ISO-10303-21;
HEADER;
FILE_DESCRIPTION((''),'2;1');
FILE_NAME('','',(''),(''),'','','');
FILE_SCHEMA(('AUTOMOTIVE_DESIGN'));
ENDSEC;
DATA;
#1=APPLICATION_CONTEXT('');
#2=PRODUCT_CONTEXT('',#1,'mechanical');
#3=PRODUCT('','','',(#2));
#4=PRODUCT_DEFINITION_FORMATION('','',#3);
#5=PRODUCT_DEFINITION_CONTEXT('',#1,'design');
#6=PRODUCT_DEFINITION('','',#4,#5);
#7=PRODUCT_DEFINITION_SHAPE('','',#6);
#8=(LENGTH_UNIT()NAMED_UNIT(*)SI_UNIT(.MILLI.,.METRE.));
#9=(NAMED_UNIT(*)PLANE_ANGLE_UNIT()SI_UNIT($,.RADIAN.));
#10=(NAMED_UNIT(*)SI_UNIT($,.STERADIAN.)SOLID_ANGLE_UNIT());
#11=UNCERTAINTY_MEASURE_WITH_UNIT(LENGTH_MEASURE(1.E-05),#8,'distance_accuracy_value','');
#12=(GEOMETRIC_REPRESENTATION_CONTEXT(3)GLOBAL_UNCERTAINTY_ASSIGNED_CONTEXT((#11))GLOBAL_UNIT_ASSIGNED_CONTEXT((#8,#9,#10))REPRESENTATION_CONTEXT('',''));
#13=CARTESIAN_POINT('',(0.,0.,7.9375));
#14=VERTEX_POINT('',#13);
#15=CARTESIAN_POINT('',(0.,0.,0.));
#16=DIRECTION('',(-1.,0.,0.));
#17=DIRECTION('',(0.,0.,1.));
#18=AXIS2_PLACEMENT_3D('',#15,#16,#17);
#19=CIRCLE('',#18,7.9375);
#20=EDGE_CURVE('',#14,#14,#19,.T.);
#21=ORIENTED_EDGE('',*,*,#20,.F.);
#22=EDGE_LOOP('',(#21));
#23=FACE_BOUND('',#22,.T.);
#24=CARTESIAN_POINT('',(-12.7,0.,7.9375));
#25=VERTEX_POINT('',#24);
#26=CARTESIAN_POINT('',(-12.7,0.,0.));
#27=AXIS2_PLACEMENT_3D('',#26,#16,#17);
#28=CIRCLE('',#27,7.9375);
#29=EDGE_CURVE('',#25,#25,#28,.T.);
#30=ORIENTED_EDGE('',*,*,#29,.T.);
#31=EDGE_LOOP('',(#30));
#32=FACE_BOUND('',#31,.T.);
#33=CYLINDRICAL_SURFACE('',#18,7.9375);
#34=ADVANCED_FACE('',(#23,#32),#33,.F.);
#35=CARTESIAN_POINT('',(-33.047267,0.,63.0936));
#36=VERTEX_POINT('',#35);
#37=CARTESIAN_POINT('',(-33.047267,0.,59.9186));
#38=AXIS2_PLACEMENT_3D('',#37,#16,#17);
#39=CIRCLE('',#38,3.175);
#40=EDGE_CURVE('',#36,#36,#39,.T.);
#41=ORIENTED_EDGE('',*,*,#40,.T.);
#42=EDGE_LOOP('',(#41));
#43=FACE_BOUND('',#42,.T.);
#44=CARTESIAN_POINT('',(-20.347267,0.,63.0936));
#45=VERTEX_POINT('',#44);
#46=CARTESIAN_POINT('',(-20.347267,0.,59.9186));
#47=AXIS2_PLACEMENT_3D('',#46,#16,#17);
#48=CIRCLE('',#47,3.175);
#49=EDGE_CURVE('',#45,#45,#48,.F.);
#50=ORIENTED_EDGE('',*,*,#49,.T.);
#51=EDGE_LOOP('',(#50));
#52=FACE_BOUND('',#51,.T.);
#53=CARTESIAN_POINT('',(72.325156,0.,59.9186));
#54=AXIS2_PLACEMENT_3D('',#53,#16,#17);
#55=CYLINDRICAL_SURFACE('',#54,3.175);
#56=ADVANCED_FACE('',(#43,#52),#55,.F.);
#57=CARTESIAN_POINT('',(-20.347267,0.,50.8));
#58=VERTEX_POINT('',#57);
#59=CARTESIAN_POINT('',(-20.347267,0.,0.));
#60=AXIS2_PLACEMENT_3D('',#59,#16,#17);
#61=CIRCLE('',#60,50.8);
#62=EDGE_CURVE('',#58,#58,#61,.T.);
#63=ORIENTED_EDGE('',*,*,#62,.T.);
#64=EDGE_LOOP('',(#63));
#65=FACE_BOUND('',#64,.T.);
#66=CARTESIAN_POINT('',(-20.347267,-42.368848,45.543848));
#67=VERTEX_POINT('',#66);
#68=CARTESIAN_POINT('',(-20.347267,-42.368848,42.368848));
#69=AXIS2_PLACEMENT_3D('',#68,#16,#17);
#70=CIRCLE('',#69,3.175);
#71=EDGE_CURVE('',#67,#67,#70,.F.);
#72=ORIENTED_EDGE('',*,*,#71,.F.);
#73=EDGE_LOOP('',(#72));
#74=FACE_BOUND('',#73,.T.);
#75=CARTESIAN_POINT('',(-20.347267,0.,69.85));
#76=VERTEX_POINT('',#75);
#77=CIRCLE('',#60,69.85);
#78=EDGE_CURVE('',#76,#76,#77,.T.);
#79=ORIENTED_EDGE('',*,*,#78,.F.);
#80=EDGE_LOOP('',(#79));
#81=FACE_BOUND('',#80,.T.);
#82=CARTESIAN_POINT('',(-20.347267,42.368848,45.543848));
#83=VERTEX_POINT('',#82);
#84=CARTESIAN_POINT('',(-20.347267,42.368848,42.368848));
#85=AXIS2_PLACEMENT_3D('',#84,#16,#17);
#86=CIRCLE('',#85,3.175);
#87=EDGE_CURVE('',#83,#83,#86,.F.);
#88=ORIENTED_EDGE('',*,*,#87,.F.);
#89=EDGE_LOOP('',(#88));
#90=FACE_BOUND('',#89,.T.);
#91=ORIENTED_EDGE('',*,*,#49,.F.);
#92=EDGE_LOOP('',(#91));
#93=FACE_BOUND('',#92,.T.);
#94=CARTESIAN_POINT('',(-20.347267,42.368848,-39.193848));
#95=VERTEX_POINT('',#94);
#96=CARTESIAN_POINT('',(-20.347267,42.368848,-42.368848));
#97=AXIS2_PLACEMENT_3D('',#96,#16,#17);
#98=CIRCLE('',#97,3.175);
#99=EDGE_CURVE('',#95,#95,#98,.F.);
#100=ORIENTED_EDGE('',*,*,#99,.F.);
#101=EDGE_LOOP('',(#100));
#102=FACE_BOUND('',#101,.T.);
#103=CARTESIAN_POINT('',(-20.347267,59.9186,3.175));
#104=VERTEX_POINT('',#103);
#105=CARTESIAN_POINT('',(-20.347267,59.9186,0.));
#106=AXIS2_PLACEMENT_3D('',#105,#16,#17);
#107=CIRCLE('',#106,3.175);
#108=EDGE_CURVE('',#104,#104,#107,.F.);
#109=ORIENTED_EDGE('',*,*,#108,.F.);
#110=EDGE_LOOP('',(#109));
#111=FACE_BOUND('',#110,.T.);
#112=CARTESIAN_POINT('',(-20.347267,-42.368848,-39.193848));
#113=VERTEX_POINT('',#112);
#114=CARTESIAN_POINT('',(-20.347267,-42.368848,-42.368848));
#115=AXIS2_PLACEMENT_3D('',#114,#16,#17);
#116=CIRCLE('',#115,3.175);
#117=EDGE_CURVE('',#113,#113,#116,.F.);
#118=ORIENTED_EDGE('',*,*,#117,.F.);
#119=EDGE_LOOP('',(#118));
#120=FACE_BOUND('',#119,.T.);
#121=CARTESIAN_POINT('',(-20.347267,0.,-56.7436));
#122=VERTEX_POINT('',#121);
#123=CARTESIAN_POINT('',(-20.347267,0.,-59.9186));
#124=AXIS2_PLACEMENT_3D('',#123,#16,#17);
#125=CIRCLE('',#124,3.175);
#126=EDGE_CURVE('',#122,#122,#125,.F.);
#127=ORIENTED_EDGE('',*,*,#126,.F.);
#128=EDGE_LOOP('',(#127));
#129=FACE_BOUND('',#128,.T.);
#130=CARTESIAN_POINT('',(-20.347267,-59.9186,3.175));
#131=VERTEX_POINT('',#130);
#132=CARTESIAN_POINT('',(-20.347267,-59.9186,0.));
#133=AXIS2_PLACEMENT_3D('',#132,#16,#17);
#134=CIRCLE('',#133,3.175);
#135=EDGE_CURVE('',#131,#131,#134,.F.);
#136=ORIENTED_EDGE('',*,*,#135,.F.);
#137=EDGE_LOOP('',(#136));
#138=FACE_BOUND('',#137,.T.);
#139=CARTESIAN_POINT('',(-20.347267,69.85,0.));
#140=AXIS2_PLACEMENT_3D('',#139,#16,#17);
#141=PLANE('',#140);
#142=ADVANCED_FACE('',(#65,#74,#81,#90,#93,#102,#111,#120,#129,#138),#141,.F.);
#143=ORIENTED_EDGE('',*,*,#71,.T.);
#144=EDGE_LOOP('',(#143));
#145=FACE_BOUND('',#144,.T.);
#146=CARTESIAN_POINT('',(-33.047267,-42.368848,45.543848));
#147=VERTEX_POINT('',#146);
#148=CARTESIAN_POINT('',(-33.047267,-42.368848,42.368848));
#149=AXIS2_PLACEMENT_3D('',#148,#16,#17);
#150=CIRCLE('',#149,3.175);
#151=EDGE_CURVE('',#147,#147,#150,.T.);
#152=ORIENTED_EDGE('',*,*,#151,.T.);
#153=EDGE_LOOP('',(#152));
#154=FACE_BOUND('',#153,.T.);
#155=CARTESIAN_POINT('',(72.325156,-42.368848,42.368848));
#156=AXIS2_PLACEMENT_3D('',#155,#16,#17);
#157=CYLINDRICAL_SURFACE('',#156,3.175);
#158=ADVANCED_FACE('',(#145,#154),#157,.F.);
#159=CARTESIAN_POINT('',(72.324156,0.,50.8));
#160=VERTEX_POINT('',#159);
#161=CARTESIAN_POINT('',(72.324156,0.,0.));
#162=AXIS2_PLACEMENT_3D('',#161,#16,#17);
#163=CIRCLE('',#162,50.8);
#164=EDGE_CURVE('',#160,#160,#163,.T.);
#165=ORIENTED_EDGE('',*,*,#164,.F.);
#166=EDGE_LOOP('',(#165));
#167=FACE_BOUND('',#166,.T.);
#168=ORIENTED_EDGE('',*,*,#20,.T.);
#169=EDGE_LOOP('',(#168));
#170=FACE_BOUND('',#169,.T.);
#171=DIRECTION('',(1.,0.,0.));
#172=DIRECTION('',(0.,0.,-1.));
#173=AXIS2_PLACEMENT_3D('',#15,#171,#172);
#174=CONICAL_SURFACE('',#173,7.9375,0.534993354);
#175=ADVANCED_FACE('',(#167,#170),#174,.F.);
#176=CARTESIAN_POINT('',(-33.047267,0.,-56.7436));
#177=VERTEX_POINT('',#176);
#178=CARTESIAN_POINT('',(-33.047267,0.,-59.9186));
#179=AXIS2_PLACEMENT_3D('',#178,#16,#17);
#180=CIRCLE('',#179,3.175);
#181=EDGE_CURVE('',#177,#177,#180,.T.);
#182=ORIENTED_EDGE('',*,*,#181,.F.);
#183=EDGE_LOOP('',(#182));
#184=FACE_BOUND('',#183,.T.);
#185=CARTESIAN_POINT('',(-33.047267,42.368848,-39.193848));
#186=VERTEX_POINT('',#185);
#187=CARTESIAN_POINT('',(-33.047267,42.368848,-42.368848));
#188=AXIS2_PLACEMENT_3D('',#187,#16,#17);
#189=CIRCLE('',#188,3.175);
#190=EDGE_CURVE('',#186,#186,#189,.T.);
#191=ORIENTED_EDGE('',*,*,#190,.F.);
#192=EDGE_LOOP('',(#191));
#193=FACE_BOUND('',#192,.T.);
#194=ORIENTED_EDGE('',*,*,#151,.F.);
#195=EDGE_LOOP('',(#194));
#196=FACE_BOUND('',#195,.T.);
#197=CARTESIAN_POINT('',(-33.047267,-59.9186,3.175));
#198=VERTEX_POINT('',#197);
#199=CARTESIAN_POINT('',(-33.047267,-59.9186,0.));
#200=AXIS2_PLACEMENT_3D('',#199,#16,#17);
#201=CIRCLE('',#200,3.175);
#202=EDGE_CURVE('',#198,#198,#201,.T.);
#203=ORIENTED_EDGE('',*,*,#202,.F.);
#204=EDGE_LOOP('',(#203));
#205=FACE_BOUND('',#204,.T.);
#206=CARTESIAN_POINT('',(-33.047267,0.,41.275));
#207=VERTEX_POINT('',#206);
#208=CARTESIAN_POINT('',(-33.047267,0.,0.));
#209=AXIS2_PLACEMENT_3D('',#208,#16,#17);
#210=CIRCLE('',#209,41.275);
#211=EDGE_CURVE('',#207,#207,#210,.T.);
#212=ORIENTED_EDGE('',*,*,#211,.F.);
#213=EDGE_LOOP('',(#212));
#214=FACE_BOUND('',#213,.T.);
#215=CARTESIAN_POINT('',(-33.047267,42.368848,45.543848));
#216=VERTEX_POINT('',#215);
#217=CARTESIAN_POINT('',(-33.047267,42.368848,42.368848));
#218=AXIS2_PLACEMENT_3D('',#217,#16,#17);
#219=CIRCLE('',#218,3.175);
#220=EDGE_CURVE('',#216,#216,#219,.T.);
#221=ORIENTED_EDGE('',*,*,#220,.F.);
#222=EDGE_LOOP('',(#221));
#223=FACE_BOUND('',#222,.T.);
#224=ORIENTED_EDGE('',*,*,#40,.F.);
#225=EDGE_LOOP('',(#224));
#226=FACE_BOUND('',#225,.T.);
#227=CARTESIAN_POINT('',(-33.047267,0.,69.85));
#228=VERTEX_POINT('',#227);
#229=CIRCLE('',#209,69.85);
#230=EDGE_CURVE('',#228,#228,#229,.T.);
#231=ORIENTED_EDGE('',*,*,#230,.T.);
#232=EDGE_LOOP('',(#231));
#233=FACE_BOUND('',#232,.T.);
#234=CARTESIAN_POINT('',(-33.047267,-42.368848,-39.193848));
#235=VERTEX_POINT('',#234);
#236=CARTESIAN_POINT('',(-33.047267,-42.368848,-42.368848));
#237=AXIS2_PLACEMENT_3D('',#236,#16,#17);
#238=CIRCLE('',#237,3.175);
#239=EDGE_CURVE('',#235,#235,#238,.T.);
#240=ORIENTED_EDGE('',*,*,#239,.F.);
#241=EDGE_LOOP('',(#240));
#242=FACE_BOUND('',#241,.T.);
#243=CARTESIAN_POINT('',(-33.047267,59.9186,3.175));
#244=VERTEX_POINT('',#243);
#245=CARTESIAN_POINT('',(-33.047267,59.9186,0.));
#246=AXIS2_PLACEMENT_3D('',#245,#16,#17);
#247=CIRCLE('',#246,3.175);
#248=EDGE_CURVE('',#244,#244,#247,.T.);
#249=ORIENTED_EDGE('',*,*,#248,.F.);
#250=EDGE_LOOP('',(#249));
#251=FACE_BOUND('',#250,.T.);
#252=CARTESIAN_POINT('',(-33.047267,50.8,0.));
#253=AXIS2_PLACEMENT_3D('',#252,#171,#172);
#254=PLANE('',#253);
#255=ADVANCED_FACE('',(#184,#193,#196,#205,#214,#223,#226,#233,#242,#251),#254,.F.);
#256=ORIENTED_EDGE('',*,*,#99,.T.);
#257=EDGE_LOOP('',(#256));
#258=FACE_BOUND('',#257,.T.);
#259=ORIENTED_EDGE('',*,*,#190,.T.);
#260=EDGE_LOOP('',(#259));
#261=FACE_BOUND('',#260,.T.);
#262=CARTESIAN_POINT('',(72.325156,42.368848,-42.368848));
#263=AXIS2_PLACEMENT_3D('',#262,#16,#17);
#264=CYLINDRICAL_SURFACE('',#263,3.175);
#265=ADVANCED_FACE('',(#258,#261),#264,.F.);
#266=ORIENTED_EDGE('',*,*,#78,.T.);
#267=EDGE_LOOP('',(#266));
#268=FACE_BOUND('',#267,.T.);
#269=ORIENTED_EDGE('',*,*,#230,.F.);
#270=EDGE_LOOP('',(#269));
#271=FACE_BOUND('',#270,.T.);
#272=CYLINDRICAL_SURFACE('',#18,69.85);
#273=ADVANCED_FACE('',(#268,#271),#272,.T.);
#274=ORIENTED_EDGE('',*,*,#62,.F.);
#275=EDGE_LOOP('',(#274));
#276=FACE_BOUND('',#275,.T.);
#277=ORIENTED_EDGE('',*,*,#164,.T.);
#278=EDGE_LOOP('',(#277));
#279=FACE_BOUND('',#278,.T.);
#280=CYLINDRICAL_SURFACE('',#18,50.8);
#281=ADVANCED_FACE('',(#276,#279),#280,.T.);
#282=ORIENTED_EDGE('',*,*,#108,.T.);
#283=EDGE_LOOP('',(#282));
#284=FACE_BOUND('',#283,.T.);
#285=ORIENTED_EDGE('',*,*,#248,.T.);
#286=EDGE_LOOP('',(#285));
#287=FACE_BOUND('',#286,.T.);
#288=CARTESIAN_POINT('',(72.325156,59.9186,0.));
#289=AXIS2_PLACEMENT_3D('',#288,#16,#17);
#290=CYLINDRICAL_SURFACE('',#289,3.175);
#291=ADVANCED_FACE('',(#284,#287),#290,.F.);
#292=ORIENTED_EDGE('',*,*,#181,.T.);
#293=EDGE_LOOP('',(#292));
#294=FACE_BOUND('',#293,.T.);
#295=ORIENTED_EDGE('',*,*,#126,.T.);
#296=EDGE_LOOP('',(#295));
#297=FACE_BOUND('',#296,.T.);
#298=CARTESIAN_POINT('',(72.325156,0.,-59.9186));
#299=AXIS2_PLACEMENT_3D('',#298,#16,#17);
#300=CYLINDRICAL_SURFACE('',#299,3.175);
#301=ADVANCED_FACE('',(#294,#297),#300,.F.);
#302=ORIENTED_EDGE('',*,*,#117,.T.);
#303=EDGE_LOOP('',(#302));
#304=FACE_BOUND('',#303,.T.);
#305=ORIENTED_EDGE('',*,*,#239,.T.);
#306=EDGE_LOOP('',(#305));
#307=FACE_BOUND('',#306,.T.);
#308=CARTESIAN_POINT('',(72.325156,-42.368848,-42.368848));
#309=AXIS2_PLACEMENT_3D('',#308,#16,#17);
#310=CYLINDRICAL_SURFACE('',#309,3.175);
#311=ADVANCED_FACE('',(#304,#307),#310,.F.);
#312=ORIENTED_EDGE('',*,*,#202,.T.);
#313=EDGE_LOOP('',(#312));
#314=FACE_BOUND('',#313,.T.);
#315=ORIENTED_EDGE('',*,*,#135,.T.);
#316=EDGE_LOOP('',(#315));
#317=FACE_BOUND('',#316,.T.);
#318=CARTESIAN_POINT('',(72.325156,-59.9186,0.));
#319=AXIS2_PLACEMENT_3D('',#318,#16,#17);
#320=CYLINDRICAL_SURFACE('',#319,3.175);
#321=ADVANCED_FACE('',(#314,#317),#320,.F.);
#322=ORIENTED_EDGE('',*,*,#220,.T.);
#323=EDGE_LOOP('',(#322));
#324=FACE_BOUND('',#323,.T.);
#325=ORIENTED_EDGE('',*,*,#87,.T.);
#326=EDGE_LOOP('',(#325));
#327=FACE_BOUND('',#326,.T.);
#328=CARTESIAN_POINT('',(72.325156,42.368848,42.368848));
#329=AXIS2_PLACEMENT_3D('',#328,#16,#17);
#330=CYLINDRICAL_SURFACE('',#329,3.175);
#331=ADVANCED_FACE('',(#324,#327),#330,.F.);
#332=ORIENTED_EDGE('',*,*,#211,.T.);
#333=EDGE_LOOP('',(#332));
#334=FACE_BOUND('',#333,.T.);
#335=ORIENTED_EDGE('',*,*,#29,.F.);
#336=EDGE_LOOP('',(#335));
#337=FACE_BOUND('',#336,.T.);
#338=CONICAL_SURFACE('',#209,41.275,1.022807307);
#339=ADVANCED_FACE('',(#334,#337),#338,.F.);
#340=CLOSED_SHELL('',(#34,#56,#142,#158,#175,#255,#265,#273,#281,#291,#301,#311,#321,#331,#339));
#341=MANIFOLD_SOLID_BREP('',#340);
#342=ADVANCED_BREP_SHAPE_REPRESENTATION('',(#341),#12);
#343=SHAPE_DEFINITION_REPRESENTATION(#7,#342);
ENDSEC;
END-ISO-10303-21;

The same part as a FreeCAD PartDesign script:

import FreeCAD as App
import Part
import Sketcher
Q = App.Units.Quantity


def add_polygon(sketch, points):
    """Adds a closed chain of lines whose ends are joined by coincident constraints."""
    first, n = sketch.GeometryCount, len(points)
    for a, b in zip(points, points[1:] + points[:1]):
        sketch.addGeometry(Part.LineSegment(App.Vector(*a, 0), App.Vector(*b, 0)), False)
    for i in range(n):
        sketch.addConstraint(Sketcher.Constraint("Coincident", first + i, 2, first + (i + 1) % n, 1))

doc = App.newDocument("Part")
params = doc.addObject("Spreadsheet::Sheet", "Params")
for row, (alias, value) in enumerate([
    ("sketch1_width", "0.5 in"),
    ("sketch1_height", "0.75 in"),
    ("sketch1_height2", "1.125 in"),
    ("revolution_angle", "360 deg"),
    ("sketch2_diameter", "0.25 in"),
    ("sketch3_diameter", "0.25 in"),
    ("sketch4_diameter", "0.25 in"),
    ("sketch5_diameter", "0.25 in"),
    ("sketch6_diameter", "0.25 in"),
    ("sketch7_diameter", "0.25 in"),
    ("sketch8_diameter", "0.25 in"),
    ("sketch9_diameter", "0.25 in"),
], start=1):
    params.set(f"A{row}", alias)
    params.set(f"B{row}", "=" + value)
    params.setAlias(f"B{row}", alias)

body = doc.addObject("PartDesign::Body", "Body")

# Sketch on XY plane
sketch1 = doc.addObject("Sketcher::SketchObject", "Sketch")
body.addObject(sketch1)
sketch1.AttachmentSupport = (doc.XY_Plane, [""])
sketch1.MapMode = "FlatFace"
add_polygon(sketch1, [(0, 8), (72, 51), (-20, 51), (-20, 70), (-33, 70), (-33, 41), (-13, 8)])  # lines 0-6
sketch1.addConstraint([
    Sketcher.Constraint("Horizontal", 1),
    Sketcher.Constraint("Vertical", 2),
    Sketcher.Constraint("Horizontal", 3),
    Sketcher.Constraint("Vertical", 4),
    Sketcher.Constraint("Horizontal", 6),
    Sketcher.Constraint("PointOnObject", 6, 2, -2),
    Sketcher.Constraint("Equal", 3, 6),
    Sketcher.Constraint("DistanceX", 3, 2, 3, 1, Q("0.5 in")),
    Sketcher.Constraint("DistanceY", -1, 1, 0, 2, Q("2 in")),
    Sketcher.Constraint("DistanceY", 2, 1, 2, 2, Q("0.75 in")),
    Sketcher.Constraint("DistanceY", 4, 2, 4, 1, Q("1.125 in")),
    Sketcher.Constraint("DistanceY", -1, 1, 5, 2, Q("0.3125 in")),
    Sketcher.Constraint("Distance", 5, 39.056372),
    Sketcher.Constraint("DistanceX", 1, 2, 1, 1, 92.671423),
])
sketch1.setExpression("Constraints[14]", "Params.sketch1_width")
sketch1.setExpression("Constraints[16]", "Params.sketch1_height")
sketch1.setExpression("Constraints[17]", "Params.sketch1_height2")
revolution = doc.addObject("PartDesign::Revolution", "Revolution")
body.addObject(revolution)
revolution.Profile = sketch1
revolution.ReferenceAxis = (sketch1, ["H_Axis"])
revolution.setExpression("Angle", "Params.revolution_angle")

# Sketch on YZ plane
sketch2 = doc.addObject("Sketcher::SketchObject", "Sketch001")
body.addObject(sketch2)
sketch2.AttachmentSupport = (doc.YZ_Plane, [""])
sketch2.MapMode = "FlatFace"
sketch2.AttachmentOffset = App.Placement(App.Vector(0, 0, -33.047267), App.Rotation())
sketch2.addGeometry(Part.Circle(App.Vector(59.9, 0, 0), App.Vector(0, 0, 1), 3.2), False)
sketch2.addConstraint([
    Sketcher.Constraint("PointOnObject", 0, 3, -1),
    Sketcher.Constraint("Diameter", 0, Q("0.25 in")),
    Sketcher.Constraint("DistanceX", -1, 1, 0, 3, Q("2.359 in")),
])
sketch2.setExpression("Constraints[1]", "Params.sketch2_diameter")
pocket1 = doc.addObject("PartDesign::Pocket", "Pocket")
body.addObject(pocket1)
pocket1.Profile = sketch2
pocket1.Type = "UpToFirst"
pocket1.Reversed = True

# Sketch on YZ plane
sketch3 = doc.addObject("Sketcher::SketchObject", "Sketch002")
body.addObject(sketch3)
sketch3.AttachmentSupport = (doc.YZ_Plane, [""])
sketch3.MapMode = "FlatFace"
sketch3.AttachmentOffset = App.Placement(App.Vector(0, 0, -33.047267), App.Rotation())
sketch3.addGeometry(Part.Circle(App.Vector(42.4, 42.4, 0), App.Vector(0, 0, 1), 3.2), False)
sketch3.addConstraint([
    Sketcher.Constraint("Diameter", 0, Q("0.25 in")),
    Sketcher.Constraint("DistanceX", -1, 1, 0, 3, 42.368848),
    Sketcher.Constraint("DistanceY", -1, 1, 0, 3, 42.368848),
])
sketch3.setExpression("Constraints[0]", "Params.sketch3_diameter")
pocket2 = doc.addObject("PartDesign::Pocket", "Pocket001")
body.addObject(pocket2)
pocket2.Profile = sketch3
pocket2.Type = "UpToFirst"
pocket2.Reversed = True

# Sketch on YZ plane
sketch4 = doc.addObject("Sketcher::SketchObject", "Sketch003")
body.addObject(sketch4)
sketch4.AttachmentSupport = (doc.YZ_Plane, [""])
sketch4.MapMode = "FlatFace"
sketch4.AttachmentOffset = App.Placement(App.Vector(0, 0, -33.047267), App.Rotation())
sketch4.addGeometry(Part.Circle(App.Vector(0, 59.9, 0), App.Vector(0, 0, 1), 3.2), False)
sketch4.addConstraint([
    Sketcher.Constraint("PointOnObject", 0, 3, -2),
    Sketcher.Constraint("Diameter", 0, Q("0.25 in")),
    Sketcher.Constraint("DistanceY", -1, 1, 0, 3, Q("2.359 in")),
])
sketch4.setExpression("Constraints[1]", "Params.sketch4_diameter")
pocket3 = doc.addObject("PartDesign::Pocket", "Pocket002")
body.addObject(pocket3)
pocket3.Profile = sketch4
pocket3.Type = "UpToFirst"
pocket3.Reversed = True

# Sketch on YZ plane
sketch5 = doc.addObject("Sketcher::SketchObject", "Sketch004")
body.addObject(sketch5)
sketch5.AttachmentSupport = (doc.YZ_Plane, [""])
sketch5.MapMode = "FlatFace"
sketch5.AttachmentOffset = App.Placement(App.Vector(0, 0, -33.047267), App.Rotation())
sketch5.addGeometry(Part.Circle(App.Vector(-42.4, 42.4, 0), App.Vector(0, 0, 1), 3.2), False)
sketch5.addConstraint([
    Sketcher.Constraint("Diameter", 0, Q("0.25 in")),
    Sketcher.Constraint("DistanceX", 0, 3, -1, 1, 42.368848),
    Sketcher.Constraint("DistanceY", -1, 1, 0, 3, 42.368848),
])
sketch5.setExpression("Constraints[0]", "Params.sketch5_diameter")
pocket4 = doc.addObject("PartDesign::Pocket", "Pocket003")
body.addObject(pocket4)
pocket4.Profile = sketch5
pocket4.Type = "UpToFirst"
pocket4.Reversed = True

# Sketch on YZ plane
sketch6 = doc.addObject("Sketcher::SketchObject", "Sketch005")
body.addObject(sketch6)
sketch6.AttachmentSupport = (doc.YZ_Plane, [""])
sketch6.MapMode = "FlatFace"
sketch6.AttachmentOffset = App.Placement(App.Vector(0, 0, -33.047267), App.Rotation())
sketch6.addGeometry(Part.Circle(App.Vector(-59.9, 0, 0), App.Vector(0, 0, 1), 3.2), False)
sketch6.addConstraint([
    Sketcher.Constraint("PointOnObject", 0, 3, -1),
    Sketcher.Constraint("Diameter", 0, Q("0.25 in")),
    Sketcher.Constraint("DistanceX", 0, 3, -1, 1, Q("2.359 in")),
])
sketch6.setExpression("Constraints[1]", "Params.sketch6_diameter")
pocket5 = doc.addObject("PartDesign::Pocket", "Pocket004")
body.addObject(pocket5)
pocket5.Profile = sketch6
pocket5.Type = "UpToFirst"
pocket5.Reversed = True

# Sketch on YZ plane
sketch7 = doc.addObject("Sketcher::SketchObject", "Sketch006")
body.addObject(sketch7)
sketch7.AttachmentSupport = (doc.YZ_Plane, [""])
sketch7.MapMode = "FlatFace"
sketch7.AttachmentOffset = App.Placement(App.Vector(0, 0, -33.047267), App.Rotation())
sketch7.addGeometry(Part.Circle(App.Vector(-42.4, -42.4, 0), App.Vector(0, 0, 1), 3.2), False)
sketch7.addConstraint([
    Sketcher.Constraint("Diameter", 0, Q("0.25 in")),
    Sketcher.Constraint("DistanceX", 0, 3, -1, 1, 42.368848),
    Sketcher.Constraint("DistanceY", 0, 3, -1, 1, 42.368848),
])
sketch7.setExpression("Constraints[0]", "Params.sketch7_diameter")
pocket6 = doc.addObject("PartDesign::Pocket", "Pocket005")
body.addObject(pocket6)
pocket6.Profile = sketch7
pocket6.Type = "UpToFirst"
pocket6.Reversed = True

# Sketch on YZ plane
sketch8 = doc.addObject("Sketcher::SketchObject", "Sketch007")
body.addObject(sketch8)
sketch8.AttachmentSupport = (doc.YZ_Plane, [""])
sketch8.MapMode = "FlatFace"
sketch8.AttachmentOffset = App.Placement(App.Vector(0, 0, -33.047267), App.Rotation())
sketch8.addGeometry(Part.Circle(App.Vector(0, -59.9, 0), App.Vector(0, 0, 1), 3.2), False)
sketch8.addConstraint([
    Sketcher.Constraint("PointOnObject", 0, 3, -2),
    Sketcher.Constraint("Diameter", 0, Q("0.25 in")),
    Sketcher.Constraint("DistanceY", 0, 3, -1, 1, Q("2.359 in")),
])
sketch8.setExpression("Constraints[1]", "Params.sketch8_diameter")
pocket7 = doc.addObject("PartDesign::Pocket", "Pocket006")
body.addObject(pocket7)
pocket7.Profile = sketch8
pocket7.Type = "UpToFirst"
pocket7.Reversed = True

# Sketch on YZ plane
sketch9 = doc.addObject("Sketcher::SketchObject", "Sketch008")
body.addObject(sketch9)
sketch9.AttachmentSupport = (doc.YZ_Plane, [""])
sketch9.MapMode = "FlatFace"
sketch9.AttachmentOffset = App.Placement(App.Vector(0, 0, -33.047267), App.Rotation())
sketch9.addGeometry(Part.Circle(App.Vector(42.4, -42.4, 0), App.Vector(0, 0, 1), 3.2), False)
sketch9.addConstraint([
    Sketcher.Constraint("Diameter", 0, Q("0.25 in")),
    Sketcher.Constraint("DistanceX", -1, 1, 0, 3, 42.368848),
    Sketcher.Constraint("DistanceY", 0, 3, -1, 1, 42.368848),
])
sketch9.setExpression("Constraints[0]", "Params.sketch9_diameter")
pocket8 = doc.addObject("PartDesign::Pocket", "Pocket007")
body.addObject(pocket8)
pocket8.Profile = sketch9
pocket8.Type = "UpToFirst"
pocket8.Reversed = True

doc.recompute()
